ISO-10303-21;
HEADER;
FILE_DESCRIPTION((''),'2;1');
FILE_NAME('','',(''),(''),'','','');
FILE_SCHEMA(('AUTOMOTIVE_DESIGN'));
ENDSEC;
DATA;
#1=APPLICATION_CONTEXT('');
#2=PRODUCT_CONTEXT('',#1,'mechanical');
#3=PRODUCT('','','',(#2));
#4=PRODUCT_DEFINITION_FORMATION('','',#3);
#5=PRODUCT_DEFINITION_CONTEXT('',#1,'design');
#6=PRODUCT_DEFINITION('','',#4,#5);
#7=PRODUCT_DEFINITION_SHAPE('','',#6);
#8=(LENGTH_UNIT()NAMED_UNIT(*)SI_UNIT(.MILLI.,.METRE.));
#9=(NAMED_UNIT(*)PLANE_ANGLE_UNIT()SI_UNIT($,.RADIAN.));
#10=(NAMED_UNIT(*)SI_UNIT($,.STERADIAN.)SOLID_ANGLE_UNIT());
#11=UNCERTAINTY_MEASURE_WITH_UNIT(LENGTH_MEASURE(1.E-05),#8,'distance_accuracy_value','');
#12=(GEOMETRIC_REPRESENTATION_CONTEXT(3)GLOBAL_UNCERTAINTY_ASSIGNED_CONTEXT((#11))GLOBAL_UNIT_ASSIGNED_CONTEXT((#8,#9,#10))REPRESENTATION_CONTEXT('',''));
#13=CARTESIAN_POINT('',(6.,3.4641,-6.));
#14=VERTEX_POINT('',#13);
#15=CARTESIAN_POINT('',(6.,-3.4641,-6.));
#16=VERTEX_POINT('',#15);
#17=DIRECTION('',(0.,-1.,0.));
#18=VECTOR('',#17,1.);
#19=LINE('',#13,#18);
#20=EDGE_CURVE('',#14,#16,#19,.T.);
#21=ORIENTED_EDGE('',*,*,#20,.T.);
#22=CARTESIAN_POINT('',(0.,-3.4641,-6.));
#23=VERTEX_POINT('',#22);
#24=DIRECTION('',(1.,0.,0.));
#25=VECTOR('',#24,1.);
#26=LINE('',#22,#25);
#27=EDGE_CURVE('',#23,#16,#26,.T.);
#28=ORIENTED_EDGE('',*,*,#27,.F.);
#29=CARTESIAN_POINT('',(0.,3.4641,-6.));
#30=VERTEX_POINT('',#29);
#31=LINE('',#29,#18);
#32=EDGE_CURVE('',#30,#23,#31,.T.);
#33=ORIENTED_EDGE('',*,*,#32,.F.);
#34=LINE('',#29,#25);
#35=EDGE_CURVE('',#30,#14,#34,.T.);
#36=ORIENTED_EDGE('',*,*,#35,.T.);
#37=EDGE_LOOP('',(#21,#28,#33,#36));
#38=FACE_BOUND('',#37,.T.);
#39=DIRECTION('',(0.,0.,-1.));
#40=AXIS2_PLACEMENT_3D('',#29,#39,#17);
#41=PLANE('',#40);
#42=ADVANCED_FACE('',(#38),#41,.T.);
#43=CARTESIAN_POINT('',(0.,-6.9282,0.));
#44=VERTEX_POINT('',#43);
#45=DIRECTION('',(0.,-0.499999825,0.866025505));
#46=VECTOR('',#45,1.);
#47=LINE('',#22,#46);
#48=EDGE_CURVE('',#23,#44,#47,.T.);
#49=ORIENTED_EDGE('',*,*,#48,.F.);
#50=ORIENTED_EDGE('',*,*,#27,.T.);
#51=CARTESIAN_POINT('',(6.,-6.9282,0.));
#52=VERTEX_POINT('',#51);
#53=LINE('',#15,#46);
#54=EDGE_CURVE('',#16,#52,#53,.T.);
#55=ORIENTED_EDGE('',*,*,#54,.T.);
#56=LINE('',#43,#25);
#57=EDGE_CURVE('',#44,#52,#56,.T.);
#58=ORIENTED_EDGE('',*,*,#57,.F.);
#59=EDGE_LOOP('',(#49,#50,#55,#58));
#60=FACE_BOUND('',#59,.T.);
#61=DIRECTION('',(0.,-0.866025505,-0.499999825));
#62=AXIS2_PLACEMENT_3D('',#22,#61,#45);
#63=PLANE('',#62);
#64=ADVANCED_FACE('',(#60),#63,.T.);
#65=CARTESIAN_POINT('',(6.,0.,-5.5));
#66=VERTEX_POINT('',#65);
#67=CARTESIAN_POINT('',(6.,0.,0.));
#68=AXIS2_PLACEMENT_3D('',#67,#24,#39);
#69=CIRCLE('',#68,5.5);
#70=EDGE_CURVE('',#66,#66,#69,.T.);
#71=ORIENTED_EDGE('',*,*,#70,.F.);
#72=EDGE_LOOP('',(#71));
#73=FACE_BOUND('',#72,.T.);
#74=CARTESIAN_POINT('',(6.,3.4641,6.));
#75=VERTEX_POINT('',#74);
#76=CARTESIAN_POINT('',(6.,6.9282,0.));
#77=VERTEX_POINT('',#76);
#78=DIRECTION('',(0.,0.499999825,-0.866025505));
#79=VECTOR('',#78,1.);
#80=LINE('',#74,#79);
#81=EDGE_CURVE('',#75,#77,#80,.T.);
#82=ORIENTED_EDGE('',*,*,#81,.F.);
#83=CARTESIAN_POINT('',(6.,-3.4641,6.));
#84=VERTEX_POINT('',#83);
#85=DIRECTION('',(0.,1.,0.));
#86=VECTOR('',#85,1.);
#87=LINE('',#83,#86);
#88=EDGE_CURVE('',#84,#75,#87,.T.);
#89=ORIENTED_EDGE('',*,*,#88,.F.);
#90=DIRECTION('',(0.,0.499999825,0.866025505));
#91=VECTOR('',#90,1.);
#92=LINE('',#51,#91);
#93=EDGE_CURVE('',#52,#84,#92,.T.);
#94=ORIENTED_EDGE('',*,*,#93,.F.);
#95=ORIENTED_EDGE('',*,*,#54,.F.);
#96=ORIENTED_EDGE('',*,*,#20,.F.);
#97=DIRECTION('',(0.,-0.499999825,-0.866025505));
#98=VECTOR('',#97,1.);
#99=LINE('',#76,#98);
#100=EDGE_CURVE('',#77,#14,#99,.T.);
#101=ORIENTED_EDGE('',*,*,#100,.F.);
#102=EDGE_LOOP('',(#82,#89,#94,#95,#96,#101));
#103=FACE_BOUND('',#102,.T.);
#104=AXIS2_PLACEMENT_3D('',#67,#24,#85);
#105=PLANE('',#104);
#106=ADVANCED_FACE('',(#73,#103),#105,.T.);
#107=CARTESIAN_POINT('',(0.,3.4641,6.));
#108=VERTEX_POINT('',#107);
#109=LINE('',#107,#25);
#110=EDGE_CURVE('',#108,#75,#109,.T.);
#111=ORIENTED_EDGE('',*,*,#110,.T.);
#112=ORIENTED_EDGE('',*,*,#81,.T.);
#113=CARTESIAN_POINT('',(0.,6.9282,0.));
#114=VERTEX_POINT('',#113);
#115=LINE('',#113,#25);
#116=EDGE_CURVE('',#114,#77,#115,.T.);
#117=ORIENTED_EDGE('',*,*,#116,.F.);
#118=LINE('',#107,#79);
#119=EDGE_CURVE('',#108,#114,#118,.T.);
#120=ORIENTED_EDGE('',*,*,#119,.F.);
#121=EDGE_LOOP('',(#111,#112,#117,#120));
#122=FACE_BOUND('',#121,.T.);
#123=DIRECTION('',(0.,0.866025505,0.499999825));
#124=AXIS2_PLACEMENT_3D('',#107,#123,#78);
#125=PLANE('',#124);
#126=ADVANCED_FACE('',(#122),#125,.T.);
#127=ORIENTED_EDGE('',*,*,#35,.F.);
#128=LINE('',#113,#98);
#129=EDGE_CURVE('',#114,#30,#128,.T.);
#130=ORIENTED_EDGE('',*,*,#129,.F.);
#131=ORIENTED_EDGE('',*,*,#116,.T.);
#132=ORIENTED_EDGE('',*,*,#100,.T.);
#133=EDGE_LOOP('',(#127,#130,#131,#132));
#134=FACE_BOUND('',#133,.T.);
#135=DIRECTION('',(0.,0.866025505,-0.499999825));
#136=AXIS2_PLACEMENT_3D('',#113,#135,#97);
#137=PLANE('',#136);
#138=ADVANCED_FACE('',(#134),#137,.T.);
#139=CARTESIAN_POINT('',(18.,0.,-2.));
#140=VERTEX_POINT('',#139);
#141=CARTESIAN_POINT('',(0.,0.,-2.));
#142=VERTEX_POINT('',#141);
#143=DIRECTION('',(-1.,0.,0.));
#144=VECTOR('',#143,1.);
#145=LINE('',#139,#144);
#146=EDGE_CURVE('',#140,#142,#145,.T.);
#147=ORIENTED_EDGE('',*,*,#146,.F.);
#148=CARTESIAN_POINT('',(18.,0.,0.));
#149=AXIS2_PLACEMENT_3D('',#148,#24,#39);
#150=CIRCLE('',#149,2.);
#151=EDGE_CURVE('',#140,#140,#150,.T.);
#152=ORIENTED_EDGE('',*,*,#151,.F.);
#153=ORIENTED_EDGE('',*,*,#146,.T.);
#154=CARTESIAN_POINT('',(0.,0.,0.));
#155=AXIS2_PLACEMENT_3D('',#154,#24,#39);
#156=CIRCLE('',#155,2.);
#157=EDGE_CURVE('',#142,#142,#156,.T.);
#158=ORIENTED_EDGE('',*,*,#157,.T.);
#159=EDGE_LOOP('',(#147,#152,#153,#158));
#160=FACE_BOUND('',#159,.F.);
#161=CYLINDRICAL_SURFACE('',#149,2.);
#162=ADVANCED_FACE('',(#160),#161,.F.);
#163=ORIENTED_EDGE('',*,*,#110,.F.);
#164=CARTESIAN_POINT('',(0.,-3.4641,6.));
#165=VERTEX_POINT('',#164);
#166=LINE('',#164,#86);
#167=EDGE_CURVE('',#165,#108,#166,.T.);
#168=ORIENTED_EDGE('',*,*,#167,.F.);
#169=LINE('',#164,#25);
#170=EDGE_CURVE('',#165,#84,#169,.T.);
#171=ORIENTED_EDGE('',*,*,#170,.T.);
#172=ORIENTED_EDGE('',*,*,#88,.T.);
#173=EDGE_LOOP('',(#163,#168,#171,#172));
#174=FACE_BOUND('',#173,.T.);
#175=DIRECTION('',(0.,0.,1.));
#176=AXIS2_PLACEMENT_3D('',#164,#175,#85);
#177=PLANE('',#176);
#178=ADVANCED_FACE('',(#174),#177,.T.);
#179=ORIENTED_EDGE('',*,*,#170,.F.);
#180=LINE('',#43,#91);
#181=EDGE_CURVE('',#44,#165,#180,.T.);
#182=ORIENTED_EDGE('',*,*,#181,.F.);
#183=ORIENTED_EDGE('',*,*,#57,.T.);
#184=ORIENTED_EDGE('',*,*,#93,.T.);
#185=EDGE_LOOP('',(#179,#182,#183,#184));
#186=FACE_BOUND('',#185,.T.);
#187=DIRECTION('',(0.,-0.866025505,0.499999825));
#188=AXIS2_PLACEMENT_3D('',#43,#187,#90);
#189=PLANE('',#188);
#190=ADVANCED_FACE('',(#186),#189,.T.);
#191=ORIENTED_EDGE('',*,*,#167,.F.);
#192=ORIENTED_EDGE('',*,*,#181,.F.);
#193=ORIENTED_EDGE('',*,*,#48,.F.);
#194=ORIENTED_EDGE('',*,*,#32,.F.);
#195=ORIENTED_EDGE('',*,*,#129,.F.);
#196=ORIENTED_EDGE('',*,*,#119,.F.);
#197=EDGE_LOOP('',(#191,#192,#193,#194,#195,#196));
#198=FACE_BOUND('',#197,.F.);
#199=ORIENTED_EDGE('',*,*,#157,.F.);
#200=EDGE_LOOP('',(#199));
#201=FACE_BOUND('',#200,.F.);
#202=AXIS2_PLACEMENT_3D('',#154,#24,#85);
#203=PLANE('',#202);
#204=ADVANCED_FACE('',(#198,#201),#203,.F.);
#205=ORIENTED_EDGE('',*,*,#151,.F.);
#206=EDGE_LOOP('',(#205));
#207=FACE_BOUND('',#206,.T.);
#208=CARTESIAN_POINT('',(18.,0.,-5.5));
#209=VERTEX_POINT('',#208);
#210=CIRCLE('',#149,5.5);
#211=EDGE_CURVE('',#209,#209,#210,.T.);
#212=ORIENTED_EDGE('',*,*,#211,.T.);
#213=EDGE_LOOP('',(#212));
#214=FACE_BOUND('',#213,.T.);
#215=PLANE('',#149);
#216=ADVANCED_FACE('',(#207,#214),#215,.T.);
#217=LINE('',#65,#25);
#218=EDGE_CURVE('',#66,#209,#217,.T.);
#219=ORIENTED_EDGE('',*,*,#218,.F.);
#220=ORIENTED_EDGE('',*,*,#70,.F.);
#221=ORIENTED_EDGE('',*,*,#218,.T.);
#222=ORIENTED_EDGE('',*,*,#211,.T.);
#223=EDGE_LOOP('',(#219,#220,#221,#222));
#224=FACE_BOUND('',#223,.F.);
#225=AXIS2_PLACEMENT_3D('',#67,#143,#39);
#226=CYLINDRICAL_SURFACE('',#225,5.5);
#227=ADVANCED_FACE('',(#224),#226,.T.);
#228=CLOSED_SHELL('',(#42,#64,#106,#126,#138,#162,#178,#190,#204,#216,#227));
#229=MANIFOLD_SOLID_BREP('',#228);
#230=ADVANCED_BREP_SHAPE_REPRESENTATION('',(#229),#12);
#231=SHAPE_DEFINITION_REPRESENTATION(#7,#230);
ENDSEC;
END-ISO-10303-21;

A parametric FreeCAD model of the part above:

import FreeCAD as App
import Part
import Sketcher

V = App.Vector
Q = App.Units.Quantity

doc = App.newDocument("Part")
body = doc.addObject("PartDesign::Body", "Body")

# Sketch on YZ plane
sketch1 = doc.addObject("Sketcher::SketchObject", "Sketch")
body.addObject(sketch1)
sketch1.AttachmentSupport = (doc.YZ_Plane, [""])
sketch1.MapMode = "FlatFace"
sketch1.addGeometry([
    Part.LineSegment(V(3, -6, 0), V(7, 0, 0)),  # 0
    Part.LineSegment(V(7, 0, 0), V(3, 6, 0)),  # 1
    Part.LineSegment(V(3, 6, 0), V(-3, 6, 0)),  # 2
    Part.LineSegment(V(-3, 6, 0), V(-7, 0, 0)),  # 3
    Part.LineSegment(V(-7, 0, 0), V(-3, -6, 0)),  # 4
    Part.LineSegment(V(-3, -6, 0), V(3, -6, 0)),  # 5
], False)
sketch1.addConstraint([
    Sketcher.Constraint("Coincident", 0, 2, 1, 1),
    Sketcher.Constraint("Coincident", 1, 2, 2, 1),
    Sketcher.Constraint("Coincident", 2, 2, 3, 1),
    Sketcher.Constraint("Coincident", 3, 2, 4, 1),
    Sketcher.Constraint("Coincident", 4, 2, 5, 1),
    Sketcher.Constraint("Coincident", 5, 2, 0, 1),
    Sketcher.Constraint("Horizontal", 2),
    Sketcher.Constraint("Horizontal", 5),
    Sketcher.Constraint("Symmetric", 0, 2, 3, 2, -1, 1),
    Sketcher.Constraint("Symmetric", 1, 2, 4, 2, -1, 1),
    Sketcher.Constraint("PointOnObject", 0, 2, -1),
    Sketcher.Constraint("Parallel", 0, 3),
    Sketcher.Constraint("Vertical", 2, 2, 4, 2),
    Sketcher.Constraint("DistanceY", 4, 2, 2, 2, 12.0),
    Sketcher.Constraint("Angle", 0, Q("60 deg")),
    Sketcher.Constraint("DistanceX", 2, 2, 2, 1, 6.9282),
])
pad1 = doc.addObject("PartDesign::Pad", "Pad")
body.addObject(pad1)
pad1.Profile = sketch1
pad1.Length = 6

# Sketch on YZ plane
sketch2 = doc.addObject("Sketcher::SketchObject", "Sketch001")
body.addObject(sketch2)
sketch2.AttachmentSupport = (doc.YZ_Plane, [""])
sketch2.MapMode = "FlatFace"
sketch2.AttachmentOffset = App.Placement(V(0, 0, 6), App.Rotation())
sketch2.addGeometry(Part.Circle(V(0, 0, 0), V(0, 0, 1), 6), False)
sketch2.addConstraint([
    Sketcher.Constraint("Coincident", 0, 3, -1, 1),
    Sketcher.Constraint("Diameter", 0, 11.0),
])
pad2 = doc.addObject("PartDesign::Pad", "Pad001")
body.addObject(pad2)
pad2.Profile = sketch2
pad2.Length = 12

# Sketch on YZ plane
sketch3 = doc.addObject("Sketcher::SketchObject", "Sketch002")
body.addObject(sketch3)
sketch3.AttachmentSupport = (doc.YZ_Plane, [""])
sketch3.MapMode = "FlatFace"
sketch3.AttachmentOffset = App.Placement(V(0, 0, 18), App.Rotation())
sketch3.addGeometry(Part.Circle(V(0, 0, 0), V(0, 0, 1), 2), False)
sketch3.addConstraint([
    Sketcher.Constraint("Coincident", 0, 3, -1, 1),
    Sketcher.Constraint("Diameter", 0, 4.0),
])
pocket1 = doc.addObject("PartDesign::Pocket", "Pocket")
body.addObject(pocket1)
pocket1.Profile = sketch3
pocket1.Type = "ThroughAll"

doc.recompute()
